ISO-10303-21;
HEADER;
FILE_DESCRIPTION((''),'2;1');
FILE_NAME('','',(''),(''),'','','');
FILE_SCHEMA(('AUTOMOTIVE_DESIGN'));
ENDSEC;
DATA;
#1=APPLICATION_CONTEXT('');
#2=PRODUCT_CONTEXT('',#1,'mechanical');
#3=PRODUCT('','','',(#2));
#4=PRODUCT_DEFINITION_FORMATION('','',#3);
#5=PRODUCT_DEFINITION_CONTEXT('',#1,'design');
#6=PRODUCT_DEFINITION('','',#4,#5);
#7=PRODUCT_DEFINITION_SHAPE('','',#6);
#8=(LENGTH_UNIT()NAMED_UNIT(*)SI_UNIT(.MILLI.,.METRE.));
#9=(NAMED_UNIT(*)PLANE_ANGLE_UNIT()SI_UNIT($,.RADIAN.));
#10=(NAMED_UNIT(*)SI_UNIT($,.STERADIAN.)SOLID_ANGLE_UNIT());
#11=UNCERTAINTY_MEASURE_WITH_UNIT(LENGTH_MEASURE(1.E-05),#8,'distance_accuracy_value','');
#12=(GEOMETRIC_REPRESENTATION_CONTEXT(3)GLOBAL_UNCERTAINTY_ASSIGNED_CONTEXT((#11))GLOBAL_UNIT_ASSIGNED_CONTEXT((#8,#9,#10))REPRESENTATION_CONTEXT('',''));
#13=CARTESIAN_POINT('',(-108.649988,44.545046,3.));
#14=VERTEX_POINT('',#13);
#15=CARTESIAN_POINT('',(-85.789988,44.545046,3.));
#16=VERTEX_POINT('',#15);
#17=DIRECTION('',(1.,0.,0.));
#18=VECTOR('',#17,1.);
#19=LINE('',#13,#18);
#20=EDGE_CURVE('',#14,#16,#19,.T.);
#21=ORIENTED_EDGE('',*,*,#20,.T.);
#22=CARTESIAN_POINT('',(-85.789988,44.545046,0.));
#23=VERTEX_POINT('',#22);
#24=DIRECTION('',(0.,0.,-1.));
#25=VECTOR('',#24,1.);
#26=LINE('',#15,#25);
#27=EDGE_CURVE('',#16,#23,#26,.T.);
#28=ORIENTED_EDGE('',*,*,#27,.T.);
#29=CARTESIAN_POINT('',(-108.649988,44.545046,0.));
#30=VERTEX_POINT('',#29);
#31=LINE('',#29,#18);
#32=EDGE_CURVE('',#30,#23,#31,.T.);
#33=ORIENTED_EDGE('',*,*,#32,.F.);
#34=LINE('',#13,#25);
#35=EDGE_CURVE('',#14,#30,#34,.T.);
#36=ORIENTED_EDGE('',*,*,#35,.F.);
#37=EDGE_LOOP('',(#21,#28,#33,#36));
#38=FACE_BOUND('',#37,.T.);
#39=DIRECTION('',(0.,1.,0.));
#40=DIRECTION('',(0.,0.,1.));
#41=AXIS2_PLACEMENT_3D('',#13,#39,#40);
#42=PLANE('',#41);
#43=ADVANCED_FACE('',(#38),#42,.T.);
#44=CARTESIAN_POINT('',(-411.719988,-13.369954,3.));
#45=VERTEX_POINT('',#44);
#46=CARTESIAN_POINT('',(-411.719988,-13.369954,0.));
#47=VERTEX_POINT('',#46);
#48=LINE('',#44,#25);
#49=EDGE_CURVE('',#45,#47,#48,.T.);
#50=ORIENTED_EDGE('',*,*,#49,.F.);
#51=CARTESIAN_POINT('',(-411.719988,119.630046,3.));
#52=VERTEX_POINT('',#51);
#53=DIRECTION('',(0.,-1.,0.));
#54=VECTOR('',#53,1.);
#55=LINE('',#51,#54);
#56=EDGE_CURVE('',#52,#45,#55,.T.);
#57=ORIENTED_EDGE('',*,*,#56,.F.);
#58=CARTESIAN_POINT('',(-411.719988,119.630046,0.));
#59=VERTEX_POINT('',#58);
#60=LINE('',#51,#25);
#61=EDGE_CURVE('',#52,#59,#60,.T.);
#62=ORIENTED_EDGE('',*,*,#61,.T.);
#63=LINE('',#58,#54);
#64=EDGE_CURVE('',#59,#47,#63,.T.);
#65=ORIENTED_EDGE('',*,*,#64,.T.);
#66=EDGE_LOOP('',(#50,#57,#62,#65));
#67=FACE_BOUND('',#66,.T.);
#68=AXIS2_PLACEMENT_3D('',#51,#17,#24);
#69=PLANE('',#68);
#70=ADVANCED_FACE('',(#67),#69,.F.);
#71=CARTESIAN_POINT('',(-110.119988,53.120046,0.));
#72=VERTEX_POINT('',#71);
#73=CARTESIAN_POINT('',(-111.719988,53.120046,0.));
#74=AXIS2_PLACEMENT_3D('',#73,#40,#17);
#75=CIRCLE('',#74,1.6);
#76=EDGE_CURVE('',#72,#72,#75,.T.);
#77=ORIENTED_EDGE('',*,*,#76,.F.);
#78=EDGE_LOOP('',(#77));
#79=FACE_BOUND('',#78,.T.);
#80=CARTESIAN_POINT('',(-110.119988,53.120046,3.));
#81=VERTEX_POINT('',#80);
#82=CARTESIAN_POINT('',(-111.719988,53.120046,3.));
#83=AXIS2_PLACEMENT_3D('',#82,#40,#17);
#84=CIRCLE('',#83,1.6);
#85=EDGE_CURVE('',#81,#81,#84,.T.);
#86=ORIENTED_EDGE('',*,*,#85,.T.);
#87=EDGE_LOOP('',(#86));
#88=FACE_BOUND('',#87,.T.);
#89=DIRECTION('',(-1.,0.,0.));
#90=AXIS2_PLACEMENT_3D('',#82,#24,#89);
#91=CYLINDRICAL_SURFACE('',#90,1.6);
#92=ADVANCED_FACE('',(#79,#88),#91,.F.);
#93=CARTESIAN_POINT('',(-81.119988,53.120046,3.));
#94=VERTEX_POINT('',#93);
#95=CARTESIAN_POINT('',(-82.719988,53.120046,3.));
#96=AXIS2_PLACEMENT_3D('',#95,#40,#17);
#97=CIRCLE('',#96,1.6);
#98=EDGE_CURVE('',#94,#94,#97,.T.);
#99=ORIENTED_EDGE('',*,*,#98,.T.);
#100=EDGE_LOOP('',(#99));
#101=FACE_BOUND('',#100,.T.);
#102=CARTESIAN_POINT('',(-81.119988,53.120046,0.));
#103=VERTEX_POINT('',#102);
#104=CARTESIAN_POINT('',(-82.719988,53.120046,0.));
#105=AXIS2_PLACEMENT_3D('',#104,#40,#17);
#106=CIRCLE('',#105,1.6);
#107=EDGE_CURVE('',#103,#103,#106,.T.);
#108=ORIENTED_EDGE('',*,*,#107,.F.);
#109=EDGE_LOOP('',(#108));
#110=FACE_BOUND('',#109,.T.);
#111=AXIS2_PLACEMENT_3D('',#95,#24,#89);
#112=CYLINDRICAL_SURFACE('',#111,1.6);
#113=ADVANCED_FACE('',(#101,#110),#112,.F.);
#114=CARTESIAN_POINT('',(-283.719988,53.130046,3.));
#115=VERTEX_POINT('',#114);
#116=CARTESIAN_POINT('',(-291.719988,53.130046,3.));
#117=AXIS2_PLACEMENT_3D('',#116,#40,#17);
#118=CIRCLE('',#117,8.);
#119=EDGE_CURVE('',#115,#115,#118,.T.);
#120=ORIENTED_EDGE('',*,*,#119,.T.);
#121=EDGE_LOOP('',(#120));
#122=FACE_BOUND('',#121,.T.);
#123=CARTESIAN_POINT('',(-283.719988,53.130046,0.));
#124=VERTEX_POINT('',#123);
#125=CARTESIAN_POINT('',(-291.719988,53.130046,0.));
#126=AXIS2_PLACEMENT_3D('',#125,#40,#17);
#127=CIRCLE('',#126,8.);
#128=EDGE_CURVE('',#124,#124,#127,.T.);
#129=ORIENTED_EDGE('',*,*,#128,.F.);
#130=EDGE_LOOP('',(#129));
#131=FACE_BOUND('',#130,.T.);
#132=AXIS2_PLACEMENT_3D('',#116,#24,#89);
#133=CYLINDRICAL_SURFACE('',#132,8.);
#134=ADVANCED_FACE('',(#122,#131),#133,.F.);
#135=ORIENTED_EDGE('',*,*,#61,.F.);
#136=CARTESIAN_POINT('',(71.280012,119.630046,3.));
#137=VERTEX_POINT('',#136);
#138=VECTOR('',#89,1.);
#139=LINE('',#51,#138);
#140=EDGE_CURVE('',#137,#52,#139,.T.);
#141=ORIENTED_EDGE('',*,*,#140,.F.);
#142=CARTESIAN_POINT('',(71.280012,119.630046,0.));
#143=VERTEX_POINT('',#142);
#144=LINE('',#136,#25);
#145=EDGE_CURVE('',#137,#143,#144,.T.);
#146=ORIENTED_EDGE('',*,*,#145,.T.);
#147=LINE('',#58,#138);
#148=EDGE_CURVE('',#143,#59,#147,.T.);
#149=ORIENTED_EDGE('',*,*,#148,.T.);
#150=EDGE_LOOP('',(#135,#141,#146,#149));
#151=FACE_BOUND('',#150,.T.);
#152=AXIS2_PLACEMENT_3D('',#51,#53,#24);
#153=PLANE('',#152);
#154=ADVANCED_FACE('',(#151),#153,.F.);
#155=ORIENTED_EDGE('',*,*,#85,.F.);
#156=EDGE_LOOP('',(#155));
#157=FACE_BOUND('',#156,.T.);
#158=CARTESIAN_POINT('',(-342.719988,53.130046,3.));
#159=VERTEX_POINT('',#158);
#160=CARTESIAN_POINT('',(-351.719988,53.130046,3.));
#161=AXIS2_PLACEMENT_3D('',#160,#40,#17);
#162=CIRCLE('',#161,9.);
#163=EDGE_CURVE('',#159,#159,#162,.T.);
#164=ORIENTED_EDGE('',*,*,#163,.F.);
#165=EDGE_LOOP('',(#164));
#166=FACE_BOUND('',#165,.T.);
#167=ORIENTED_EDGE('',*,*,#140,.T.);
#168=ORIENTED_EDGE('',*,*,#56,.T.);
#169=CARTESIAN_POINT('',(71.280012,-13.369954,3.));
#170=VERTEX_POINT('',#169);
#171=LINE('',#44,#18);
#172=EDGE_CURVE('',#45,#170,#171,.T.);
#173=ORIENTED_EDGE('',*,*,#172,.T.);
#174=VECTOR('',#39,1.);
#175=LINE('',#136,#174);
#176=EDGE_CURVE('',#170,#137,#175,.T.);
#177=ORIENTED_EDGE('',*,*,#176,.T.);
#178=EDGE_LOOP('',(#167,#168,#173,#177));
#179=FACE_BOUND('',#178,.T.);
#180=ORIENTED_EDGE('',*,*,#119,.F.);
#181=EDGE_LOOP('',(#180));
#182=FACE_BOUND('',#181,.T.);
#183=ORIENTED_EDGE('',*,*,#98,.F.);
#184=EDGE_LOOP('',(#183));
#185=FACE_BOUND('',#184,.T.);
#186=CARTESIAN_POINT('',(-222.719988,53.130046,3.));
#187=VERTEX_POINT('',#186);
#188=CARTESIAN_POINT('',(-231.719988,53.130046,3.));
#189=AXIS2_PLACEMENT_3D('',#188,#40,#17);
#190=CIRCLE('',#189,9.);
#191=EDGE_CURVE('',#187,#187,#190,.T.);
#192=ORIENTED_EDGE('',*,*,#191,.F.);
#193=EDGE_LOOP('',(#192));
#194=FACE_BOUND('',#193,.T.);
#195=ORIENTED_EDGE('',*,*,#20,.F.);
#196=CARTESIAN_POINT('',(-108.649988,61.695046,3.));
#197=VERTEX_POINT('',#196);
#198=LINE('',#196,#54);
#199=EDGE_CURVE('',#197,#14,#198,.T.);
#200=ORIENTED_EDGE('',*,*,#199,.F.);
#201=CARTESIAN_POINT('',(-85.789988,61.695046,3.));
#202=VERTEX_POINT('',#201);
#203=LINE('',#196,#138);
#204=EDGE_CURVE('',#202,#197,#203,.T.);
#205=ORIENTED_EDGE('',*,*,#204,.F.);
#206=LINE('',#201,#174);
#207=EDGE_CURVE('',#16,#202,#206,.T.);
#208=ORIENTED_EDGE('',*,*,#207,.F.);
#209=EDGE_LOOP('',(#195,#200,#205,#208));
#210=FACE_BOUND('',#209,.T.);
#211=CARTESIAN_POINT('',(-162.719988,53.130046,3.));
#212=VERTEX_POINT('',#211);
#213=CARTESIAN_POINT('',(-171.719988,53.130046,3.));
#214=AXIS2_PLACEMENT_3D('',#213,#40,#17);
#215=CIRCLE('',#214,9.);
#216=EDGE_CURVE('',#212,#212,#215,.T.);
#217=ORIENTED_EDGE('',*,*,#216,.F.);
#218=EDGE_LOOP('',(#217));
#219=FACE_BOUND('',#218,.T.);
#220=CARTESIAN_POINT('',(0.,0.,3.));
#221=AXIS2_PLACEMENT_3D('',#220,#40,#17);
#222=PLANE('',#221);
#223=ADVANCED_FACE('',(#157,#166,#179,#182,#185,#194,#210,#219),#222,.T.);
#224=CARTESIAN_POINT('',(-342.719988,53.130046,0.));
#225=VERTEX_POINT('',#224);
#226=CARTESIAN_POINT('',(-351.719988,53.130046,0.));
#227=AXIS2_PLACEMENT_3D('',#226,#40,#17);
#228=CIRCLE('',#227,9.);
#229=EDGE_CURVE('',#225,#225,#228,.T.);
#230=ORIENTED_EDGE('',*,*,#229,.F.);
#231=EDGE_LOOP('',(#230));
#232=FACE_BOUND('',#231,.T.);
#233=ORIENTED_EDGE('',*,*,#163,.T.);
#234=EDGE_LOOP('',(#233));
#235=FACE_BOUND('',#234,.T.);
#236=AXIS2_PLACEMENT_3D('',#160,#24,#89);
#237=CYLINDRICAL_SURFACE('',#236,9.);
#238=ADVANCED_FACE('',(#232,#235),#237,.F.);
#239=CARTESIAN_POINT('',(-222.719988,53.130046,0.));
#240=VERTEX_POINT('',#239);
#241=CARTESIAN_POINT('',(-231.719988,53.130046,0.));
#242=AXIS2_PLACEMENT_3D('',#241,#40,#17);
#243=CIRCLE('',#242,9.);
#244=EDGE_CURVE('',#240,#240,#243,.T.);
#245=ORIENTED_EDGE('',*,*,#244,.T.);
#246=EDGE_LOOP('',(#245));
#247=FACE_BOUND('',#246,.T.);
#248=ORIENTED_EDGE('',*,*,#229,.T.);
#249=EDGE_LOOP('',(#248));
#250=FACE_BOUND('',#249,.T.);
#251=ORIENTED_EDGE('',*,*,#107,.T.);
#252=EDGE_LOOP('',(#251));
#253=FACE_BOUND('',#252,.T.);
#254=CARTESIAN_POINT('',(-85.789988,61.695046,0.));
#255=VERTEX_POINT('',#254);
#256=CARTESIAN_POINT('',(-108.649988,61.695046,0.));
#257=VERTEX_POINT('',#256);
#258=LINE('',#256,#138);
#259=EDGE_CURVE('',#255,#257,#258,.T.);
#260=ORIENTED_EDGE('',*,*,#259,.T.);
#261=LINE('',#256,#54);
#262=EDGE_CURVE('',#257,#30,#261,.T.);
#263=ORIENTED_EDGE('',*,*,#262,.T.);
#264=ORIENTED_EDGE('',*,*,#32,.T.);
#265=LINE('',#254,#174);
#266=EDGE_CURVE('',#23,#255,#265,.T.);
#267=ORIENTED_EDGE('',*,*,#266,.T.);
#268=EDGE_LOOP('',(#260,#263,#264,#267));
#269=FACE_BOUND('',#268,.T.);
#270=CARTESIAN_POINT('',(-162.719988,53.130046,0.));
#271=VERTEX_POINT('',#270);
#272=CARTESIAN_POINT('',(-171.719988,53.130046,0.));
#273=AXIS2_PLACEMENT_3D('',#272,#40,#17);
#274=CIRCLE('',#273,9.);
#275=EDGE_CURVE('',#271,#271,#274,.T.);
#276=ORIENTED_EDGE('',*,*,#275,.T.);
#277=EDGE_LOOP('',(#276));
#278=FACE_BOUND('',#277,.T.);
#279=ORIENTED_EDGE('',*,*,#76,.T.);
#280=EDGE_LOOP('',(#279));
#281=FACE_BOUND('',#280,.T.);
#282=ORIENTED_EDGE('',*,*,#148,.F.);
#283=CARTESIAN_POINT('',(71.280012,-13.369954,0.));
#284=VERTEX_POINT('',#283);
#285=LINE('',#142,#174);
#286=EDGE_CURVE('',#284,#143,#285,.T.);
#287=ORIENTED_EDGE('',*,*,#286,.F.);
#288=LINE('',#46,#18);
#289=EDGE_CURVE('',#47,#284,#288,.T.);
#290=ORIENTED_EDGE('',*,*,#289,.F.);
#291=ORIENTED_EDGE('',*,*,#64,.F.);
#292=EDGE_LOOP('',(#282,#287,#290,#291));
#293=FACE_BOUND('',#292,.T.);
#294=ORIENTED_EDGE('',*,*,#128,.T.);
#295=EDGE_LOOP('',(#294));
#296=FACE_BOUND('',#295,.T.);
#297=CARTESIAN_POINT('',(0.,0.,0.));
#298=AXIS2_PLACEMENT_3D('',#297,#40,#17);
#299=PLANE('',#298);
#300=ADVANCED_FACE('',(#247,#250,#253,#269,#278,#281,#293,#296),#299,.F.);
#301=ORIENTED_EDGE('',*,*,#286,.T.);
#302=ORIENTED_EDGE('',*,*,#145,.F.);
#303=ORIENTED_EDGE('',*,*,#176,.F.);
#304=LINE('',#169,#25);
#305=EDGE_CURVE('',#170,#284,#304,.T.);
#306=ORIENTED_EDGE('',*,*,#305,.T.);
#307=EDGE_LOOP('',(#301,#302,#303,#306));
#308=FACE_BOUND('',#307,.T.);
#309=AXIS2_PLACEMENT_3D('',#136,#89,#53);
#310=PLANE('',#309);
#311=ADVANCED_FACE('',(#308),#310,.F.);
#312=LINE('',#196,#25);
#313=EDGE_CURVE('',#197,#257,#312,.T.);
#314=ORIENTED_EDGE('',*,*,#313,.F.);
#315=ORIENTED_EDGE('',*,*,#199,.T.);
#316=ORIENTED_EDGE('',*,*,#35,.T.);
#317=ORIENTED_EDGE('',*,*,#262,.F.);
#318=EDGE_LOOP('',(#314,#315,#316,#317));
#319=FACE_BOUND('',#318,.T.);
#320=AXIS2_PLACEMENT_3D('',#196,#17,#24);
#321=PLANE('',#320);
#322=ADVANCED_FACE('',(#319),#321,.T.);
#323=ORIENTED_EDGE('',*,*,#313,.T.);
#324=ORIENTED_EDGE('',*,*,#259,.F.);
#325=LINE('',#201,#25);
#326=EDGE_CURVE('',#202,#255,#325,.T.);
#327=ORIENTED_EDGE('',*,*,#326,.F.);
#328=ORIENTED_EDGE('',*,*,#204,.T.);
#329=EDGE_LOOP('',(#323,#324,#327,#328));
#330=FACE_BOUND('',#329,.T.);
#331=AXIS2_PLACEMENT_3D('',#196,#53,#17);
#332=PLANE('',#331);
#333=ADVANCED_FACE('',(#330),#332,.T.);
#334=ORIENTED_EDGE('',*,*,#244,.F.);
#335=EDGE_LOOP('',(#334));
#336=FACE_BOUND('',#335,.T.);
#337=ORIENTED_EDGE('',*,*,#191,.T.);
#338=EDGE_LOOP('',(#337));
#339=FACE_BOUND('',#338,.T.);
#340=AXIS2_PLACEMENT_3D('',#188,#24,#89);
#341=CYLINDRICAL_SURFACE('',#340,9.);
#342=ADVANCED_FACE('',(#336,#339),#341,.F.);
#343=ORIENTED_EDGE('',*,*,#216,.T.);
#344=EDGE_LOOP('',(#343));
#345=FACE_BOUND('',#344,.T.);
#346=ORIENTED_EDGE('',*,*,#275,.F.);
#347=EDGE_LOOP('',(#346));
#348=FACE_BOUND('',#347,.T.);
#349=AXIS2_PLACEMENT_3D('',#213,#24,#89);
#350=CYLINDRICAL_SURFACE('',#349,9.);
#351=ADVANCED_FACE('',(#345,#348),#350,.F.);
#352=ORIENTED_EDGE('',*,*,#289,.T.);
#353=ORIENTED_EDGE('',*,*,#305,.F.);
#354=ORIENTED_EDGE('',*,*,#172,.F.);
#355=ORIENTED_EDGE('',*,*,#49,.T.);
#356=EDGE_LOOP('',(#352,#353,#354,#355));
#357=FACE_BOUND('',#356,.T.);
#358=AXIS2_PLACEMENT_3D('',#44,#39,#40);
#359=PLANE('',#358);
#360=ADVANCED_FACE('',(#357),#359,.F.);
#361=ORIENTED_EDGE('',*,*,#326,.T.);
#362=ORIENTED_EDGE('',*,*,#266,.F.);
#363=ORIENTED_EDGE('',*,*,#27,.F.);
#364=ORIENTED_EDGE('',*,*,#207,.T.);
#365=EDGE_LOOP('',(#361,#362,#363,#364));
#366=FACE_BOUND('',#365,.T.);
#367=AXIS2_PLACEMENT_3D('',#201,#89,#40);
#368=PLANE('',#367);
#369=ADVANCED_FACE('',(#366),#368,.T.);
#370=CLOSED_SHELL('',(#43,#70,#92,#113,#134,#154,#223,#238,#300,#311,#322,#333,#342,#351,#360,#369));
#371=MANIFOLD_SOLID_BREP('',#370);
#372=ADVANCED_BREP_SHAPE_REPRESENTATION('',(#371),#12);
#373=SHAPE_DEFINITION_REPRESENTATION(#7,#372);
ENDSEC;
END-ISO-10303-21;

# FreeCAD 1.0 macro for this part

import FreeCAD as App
import Part
import Sketcher
Q = App.Units.Quantity


def add_polygon(sketch, points):
    """Adds a closed chain of lines whose ends are joined by coincident constraints."""
    first, n = sketch.GeometryCount, len(points)
    for a, b in zip(points, points[1:] + points[:1]):
        sketch.addGeometry(Part.LineSegment(App.Vector(*a, 0), App.Vector(*b, 0)), False)
    for i in range(n):
        sketch.addConstraint(Sketcher.Constraint("Coincident", first + i, 2, first + (i + 1) % n, 1))

doc = App.newDocument("Part")
body = doc.addObject("PartDesign::Body", "Body")

sketch1 = body.newObject("Sketcher::SketchObject", "Sketch")
sketch1.AttachmentSupport = (doc.getObject("XY_Plane"), [""])
sketch1.MapMode = "FlatFace"
add_polygon(sketch1, [(-411.719988, 119.630046), (-411.719988, -13.369954), (71.280012, -13.369954), (71.280012, 119.630046)])
sketch1.addGeometry(Part.Circle(App.Vector(-111.719988, 53.120046, 0), App.Vector(0, 0, 1), 1.6), False)
add_polygon(sketch1, [(-85.789988, 44.545046), (-108.649988, 44.545046), (-108.649988, 61.695046), (-85.789988, 61.695046)])
sketch1.addGeometry(Part.Circle(App.Vector(-82.719988, 53.120046, 0), App.Vector(0, 0, 1), 1.6), False)
sketch1.addGeometry(Part.Circle(App.Vector(-351.719988, 53.130046, 0), App.Vector(0, 0, 1), 9), False)
sketch1.addGeometry(Part.Circle(App.Vector(-291.719988, 53.130046, 0), App.Vector(0, 0, 1), 8), False)
sketch1.addGeometry(Part.Circle(App.Vector(-231.719988, 53.130046, 0), App.Vector(0, 0, 1), 9), False)
sketch1.addGeometry(Part.Circle(App.Vector(-171.719988, 53.130046, 0), App.Vector(0, 0, 1), 9), False)
sketch1.addConstraint([
    Sketcher.Constraint("Vertical", 0),
    Sketcher.Constraint("Horizontal", 1),
    Sketcher.Constraint("Vertical", 2),
    Sketcher.Constraint("Horizontal", 3),
    Sketcher.Constraint("Horizontal", 5),
    Sketcher.Constraint("Vertical", 6),
    Sketcher.Constraint("Horizontal", 7),
    Sketcher.Constraint("Vertical", 8),
    Sketcher.Constraint("Equal", 4, 9),
    Sketcher.Constraint("Equal", 10, 12),
    Sketcher.Constraint("Equal", 12, 13),
    Sketcher.Constraint("Horizontal", 4, 3, 9, 3),
    Sketcher.Constraint("Horizontal", 10, 3, 11, 3),
    Sketcher.Constraint("Horizontal", 11, 3, 12, 3),
    Sketcher.Constraint("Horizontal", 12, 3, 13, 3),
    Sketcher.Constraint("Diameter", 10, Q("18 mm")),
    Sketcher.Constraint("Diameter", 11, Q("16 mm")),
    Sketcher.Constraint("Diameter", 4, Q("3.2 mm")),
    Sketcher.Constraint("DistanceX", 1, 1, 1, 2, Q("483 mm")),
    Sketcher.Constraint("DistanceY", 0, 2, 0, 1, Q("133 mm")),
    Sketcher.Constraint("DistanceX", 4, 3, 9, 3, Q("29 mm")),
    Sketcher.Constraint("DistanceX", 10, 3, 4, 3, Q("240 mm")),
    Sketcher.Constraint("DistanceX", 10, 3, 11, 3, Q("60 mm")),
    Sketcher.Constraint("DistanceX", 11, 3, 12, 3, Q("60 mm")),
    Sketcher.Constraint("DistanceX", 12, 3, 13, 3, Q("60 mm")),
    Sketcher.Constraint("DistanceX", 0, 2, 10, 3, Q("60 mm")),
    Sketcher.Constraint("DistanceX", 5, 2, 5, 1, Q("22.86 mm")),
    Sketcher.Constraint("DistanceY", 6, 1, 6, 2, Q("17.15 mm")),
    Sketcher.Constraint("DistanceY", 0, 2, 10, 3, Q("66.5 mm")),
    Sketcher.Constraint("DistanceY", 4, 3, 10, 3, Q("0.01 mm")),
    Sketcher.Constraint("DistanceX", 4, 3, 5, 2, Q("3.07 mm")),
    Sketcher.Constraint("DistanceY", 5, 2, 4, 3, Q("8.575 mm")),
    Sketcher.Constraint("DistanceX", 4, 3, -1, 1, Q("111.719988 mm")),
    Sketcher.Constraint("DistanceY", -1, 1, 4, 3, Q("53.120046 mm")),
])
pad1 = body.newObject("PartDesign::Pad", "Pad")
pad1.Profile = sketch1
pad1.Length = 3

doc.recompute()
